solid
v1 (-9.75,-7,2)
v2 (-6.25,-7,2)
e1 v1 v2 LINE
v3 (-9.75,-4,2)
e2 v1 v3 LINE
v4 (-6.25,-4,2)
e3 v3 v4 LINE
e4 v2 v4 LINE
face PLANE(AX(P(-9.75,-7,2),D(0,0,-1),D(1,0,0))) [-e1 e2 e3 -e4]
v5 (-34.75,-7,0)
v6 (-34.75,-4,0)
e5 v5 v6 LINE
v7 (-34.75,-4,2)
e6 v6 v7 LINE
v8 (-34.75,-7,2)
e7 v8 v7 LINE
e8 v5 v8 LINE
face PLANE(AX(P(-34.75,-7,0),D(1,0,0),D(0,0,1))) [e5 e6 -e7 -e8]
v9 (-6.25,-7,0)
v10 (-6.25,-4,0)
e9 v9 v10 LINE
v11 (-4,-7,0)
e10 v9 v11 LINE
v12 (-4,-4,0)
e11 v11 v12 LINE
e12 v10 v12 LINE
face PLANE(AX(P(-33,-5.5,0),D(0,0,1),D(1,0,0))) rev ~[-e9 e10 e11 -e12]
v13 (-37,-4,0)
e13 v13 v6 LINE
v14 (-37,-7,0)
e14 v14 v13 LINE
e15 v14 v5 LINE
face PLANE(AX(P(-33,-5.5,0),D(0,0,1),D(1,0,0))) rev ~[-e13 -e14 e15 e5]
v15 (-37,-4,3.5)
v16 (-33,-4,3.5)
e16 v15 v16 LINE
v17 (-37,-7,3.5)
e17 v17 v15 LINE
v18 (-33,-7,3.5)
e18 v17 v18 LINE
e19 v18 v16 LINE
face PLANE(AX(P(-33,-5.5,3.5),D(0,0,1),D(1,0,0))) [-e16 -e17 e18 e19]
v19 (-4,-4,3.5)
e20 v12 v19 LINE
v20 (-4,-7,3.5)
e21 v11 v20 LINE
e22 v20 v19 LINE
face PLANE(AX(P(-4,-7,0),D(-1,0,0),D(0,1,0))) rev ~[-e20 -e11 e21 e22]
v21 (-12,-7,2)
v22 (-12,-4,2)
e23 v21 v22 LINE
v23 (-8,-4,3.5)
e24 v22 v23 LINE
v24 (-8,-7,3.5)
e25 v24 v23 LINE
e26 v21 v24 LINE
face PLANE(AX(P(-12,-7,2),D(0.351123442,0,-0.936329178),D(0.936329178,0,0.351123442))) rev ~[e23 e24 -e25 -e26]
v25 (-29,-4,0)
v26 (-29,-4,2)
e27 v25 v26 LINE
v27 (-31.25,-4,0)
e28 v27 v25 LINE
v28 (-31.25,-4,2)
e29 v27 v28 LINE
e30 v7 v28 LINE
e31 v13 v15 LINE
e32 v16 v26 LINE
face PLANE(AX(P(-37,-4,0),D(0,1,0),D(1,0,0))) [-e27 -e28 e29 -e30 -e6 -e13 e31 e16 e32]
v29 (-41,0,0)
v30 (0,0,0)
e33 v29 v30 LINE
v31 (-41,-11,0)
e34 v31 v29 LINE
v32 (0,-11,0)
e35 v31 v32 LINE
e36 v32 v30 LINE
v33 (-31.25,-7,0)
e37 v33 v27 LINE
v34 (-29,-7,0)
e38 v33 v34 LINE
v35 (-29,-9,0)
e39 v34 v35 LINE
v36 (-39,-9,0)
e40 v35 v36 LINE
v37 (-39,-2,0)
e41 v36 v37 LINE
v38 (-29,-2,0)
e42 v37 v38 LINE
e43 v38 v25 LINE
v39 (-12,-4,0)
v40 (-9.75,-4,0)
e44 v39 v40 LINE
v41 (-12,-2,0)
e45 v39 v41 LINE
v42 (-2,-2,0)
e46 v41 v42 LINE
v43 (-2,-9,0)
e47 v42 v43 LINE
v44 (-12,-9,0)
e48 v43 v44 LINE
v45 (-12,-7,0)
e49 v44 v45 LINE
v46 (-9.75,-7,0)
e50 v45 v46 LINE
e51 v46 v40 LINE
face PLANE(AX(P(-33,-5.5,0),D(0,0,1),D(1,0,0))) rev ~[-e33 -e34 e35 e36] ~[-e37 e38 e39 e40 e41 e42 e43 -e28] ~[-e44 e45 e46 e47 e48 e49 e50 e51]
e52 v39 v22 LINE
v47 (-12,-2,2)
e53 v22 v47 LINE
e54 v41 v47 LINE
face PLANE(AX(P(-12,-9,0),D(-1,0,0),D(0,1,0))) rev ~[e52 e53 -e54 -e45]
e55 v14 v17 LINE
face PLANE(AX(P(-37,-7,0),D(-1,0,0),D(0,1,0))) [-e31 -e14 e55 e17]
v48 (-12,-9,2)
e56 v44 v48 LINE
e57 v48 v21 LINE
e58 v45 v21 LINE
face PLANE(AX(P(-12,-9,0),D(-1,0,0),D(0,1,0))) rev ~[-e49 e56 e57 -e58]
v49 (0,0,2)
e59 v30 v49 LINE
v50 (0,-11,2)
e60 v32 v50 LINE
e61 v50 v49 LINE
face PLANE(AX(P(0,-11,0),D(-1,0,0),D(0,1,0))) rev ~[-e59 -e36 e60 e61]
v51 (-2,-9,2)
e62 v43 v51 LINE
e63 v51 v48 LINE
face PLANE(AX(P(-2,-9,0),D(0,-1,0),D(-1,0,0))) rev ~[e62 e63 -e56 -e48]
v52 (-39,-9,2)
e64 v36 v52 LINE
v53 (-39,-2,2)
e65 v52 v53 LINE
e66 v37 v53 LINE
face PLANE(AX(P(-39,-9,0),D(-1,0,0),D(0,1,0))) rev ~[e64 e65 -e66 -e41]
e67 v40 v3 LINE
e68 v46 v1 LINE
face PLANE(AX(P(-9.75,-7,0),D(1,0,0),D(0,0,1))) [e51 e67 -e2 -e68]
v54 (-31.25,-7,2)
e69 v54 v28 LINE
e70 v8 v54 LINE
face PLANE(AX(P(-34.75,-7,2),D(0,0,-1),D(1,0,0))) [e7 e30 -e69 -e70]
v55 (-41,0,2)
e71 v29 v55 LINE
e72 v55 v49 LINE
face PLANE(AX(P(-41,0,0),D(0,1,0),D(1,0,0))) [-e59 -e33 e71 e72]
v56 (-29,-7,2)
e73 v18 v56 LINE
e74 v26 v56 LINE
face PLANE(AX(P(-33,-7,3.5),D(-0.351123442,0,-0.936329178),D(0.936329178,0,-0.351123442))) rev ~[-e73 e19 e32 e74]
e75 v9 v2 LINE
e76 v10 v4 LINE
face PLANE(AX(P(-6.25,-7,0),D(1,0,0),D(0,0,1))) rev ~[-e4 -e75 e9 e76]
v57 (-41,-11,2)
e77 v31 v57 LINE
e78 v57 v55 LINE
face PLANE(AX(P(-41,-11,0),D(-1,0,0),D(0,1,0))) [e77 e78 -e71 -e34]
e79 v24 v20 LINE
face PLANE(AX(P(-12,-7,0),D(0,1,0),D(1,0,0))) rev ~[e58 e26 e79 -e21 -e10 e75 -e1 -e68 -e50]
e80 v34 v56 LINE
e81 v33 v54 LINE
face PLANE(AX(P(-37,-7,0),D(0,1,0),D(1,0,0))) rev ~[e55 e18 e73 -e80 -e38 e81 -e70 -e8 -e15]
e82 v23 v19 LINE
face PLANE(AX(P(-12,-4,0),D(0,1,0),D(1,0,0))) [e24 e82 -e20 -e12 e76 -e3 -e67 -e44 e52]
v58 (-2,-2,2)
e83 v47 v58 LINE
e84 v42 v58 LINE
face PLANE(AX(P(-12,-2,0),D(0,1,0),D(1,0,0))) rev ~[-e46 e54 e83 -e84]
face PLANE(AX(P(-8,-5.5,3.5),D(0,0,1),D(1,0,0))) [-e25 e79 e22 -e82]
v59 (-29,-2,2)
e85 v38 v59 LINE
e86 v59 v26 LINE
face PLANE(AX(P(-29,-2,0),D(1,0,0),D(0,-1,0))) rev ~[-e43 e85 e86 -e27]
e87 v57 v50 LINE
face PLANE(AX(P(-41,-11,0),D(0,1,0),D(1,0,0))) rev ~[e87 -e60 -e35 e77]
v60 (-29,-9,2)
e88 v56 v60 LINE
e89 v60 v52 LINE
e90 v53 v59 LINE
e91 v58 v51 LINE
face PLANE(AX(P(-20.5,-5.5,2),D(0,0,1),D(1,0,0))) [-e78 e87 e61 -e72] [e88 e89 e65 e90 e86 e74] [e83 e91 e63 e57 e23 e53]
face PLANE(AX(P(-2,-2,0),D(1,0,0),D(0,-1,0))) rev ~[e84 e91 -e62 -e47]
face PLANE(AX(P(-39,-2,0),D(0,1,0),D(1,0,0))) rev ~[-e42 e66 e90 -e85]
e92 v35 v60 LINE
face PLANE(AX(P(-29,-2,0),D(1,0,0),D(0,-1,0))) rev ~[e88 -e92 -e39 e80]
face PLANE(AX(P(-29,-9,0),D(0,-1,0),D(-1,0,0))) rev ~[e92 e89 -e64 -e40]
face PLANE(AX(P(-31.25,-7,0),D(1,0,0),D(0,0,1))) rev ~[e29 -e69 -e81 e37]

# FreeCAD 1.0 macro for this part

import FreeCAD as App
import Part
import Sketcher
Q = App.Units.Quantity

doc = App.newDocument("Part")
params = doc.addObject("Spreadsheet::Sheet", "Params")
for row, (alias, value) in enumerate([
    ("sketch1_width", "41 mm"),
    ("sketch1_width2", "10 mm"),
    ("sketch1_height", "11 mm"),
    ("sketch1_height2", "7 mm"),
    ("pad1_length", "2 mm"),
    ("sketch2_width", "8 mm"),
    ("sketch2_height", "3 mm"),
    ("pad2_length", "3.5 mm"),
    ("sketch3_width", "4 mm"),
    ("sketch3_height", "2 mm"),
    ("sketch3_width2", "3.5 mm"),
    ("sketch3_height2", "1.5 mm"),
    ("pocket1_length", "3 mm"),
    ("sketch4_width", "4 mm"),
    ("sketch4_height", "2 mm"),
    ("sketch4_width2", "3.5 mm"),
    ("sketch4_height2", "1.5 mm"),
    ("pocket2_length", "3 mm"),
], start=1):
    params.set(f"A{row}", alias)
    params.set(f"B{row}", "=" + value)
    params.setAlias(f"B{row}", alias)

body = doc.addObject("PartDesign::Body", "Body")

# Sketch on XY plane
sketch1 = body.newObject("Sketcher::SketchObject", "Sketch")
sketch1.AttachmentSupport = (doc.getObject("XY_Plane"), [""])
sketch1.MapMode = "FlatFace"
sketch1.addGeometry([
    Part.LineSegment(App.Vector(-41, 0, 0), App.Vector(-41, -11, 0)),  # 0
    Part.LineSegment(App.Vector(-41, -11, 0), App.Vector(0, -11, 0)),  # 1
    Part.LineSegment(App.Vector(0, -11, 0), App.Vector(0, 0, 0)),  # 2
    Part.LineSegment(App.Vector(0, 0, 0), App.Vector(-41, 0, 0)),  # 3
    Part.LineSegment(App.Vector(-29, -9, 0), App.Vector(-39, -9, 0)),  # 4
    Part.LineSegment(App.Vector(-39, -9, 0), App.Vector(-39, -2, 0)),  # 5
    Part.LineSegment(App.Vector(-39, -2, 0), App.Vector(-29, -2, 0)),  # 6
    Part.LineSegment(App.Vector(-29, -2, 0), App.Vector(-29, -9, 0)),  # 7
    Part.LineSegment(App.Vector(-2, -2, 0), App.Vector(-2, -9, 0)),  # 8
    Part.LineSegment(App.Vector(-2, -9, 0), App.Vector(-12, -9, 0)),  # 9
    Part.LineSegment(App.Vector(-12, -9, 0), App.Vector(-12, -2, 0)),  # 10
    Part.LineSegment(App.Vector(-12, -2, 0), App.Vector(-2, -2, 0)),  # 11
], False)
sketch1.addConstraint([
    Sketcher.Constraint("Coincident", 0, 2, 1, 1),
    Sketcher.Constraint("Coincident", 1, 2, 2, 1),
    Sketcher.Constraint("Coincident", 2, 2, 3, 1),
    Sketcher.Constraint("Coincident", 3, 2, 0, 1),
    Sketcher.Constraint("Coincident", 4, 2, 5, 1),
    Sketcher.Constraint("Coincident", 5, 2, 6, 1),
    Sketcher.Constraint("Coincident", 6, 2, 7, 1),
    Sketcher.Constraint("Coincident", 7, 2, 4, 1),
    Sketcher.Constraint("Coincident", 8, 2, 9, 1),
    Sketcher.Constraint("Coincident", 9, 2, 10, 1),
    Sketcher.Constraint("Coincident", 10, 2, 11, 1),
    Sketcher.Constraint("Coincident", 11, 2, 8, 1),
    Sketcher.Constraint("Vertical", 0),
    Sketcher.Constraint("Horizontal", 1),
    Sketcher.Constraint("Vertical", 2),
    Sketcher.Constraint("Horizontal", 3),
    Sketcher.Constraint("Horizontal", 4),
    Sketcher.Constraint("Vertical", 5),
    Sketcher.Constraint("Horizontal", 6),
    Sketcher.Constraint("Vertical", 7),
    Sketcher.Constraint("Vertical", 8),
    Sketcher.Constraint("Horizontal", 9),
    Sketcher.Constraint("Vertical", 10),
    Sketcher.Constraint("Horizontal", 11),
    Sketcher.Constraint("Coincident", 2, 2, -1, 1),
    Sketcher.Constraint("Horizontal", 7, 2, 8, 2),
    Sketcher.Constraint("Horizontal", 6, 2, 10, 2),
    Sketcher.Constraint("Equal", 6, 9),
    Sketcher.Constraint("DistanceX", 1, 1, 1, 2, Q("41 mm")),
    Sketcher.Constraint("DistanceX", 4, 2, 4, 1, Q("10 mm")),
    Sketcher.Constraint("DistanceY", 0, 2, 0, 1, Q("11 mm")),
    Sketcher.Constraint("DistanceY", 5, 1, 5, 2, Q("7 mm")),
    Sketcher.Constraint("DistanceX", 4, 2, -1, 1, Q("39 mm")),
    Sketcher.Constraint("DistanceY", 4, 2, -1, 1, Q("9 mm")),
    Sketcher.Constraint("DistanceX", 8, 2, -1, 1, Q("2 mm")),
])
sketch1.setExpression("Constraints[28]", "Params.sketch1_width")
sketch1.setExpression("Constraints[29]", "Params.sketch1_width2")
sketch1.setExpression("Constraints[30]", "Params.sketch1_height")
sketch1.setExpression("Constraints[31]", "Params.sketch1_height2")
pad1 = body.newObject("PartDesign::Pad", "Pad")
pad1.Profile = sketch1
pad1.setExpression("Length", "Params.pad1_length")

# Sketch on XY plane
sketch2 = body.newObject("Sketcher::SketchObject", "Sketch001")
sketch2.AttachmentSupport = (doc.getObject("XY_Plane"), [""])
sketch2.MapMode = "FlatFace"
sketch2.addGeometry([
    Part.LineSegment(App.Vector(-37, -4, 0), App.Vector(-37, -7, 0)),  # 0
    Part.LineSegment(App.Vector(-37, -7, 0), App.Vector(-29, -7, 0)),  # 1
    Part.LineSegment(App.Vector(-29, -7, 0), App.Vector(-29, -4, 0)),  # 2
    Part.LineSegment(App.Vector(-29, -4, 0), App.Vector(-37, -4, 0)),  # 3
    Part.LineSegment(App.Vector(-12, -4, 0), App.Vector(-12, -7, 0)),  # 4
    Part.LineSegment(App.Vector(-12, -7, 0), App.Vector(-4, -7, 0)),  # 5
    Part.LineSegment(App.Vector(-4, -7, 0), App.Vector(-4, -4, 0)),  # 6
    Part.LineSegment(App.Vector(-4, -4, 0), App.Vector(-12, -4, 0)),  # 7
], False)
sketch2.addConstraint([
    Sketcher.Constraint("Coincident", 0, 2, 1, 1),
    Sketcher.Constraint("Coincident", 1, 2, 2, 1),
    Sketcher.Constraint("Coincident", 2, 2, 3, 1),
    Sketcher.Constraint("Coincident", 3, 2, 0, 1),
    Sketcher.Constraint("Coincident", 4, 2, 5, 1),
    Sketcher.Constraint("Coincident", 5, 2, 6, 1),
    Sketcher.Constraint("Coincident", 6, 2, 7, 1),
    Sketcher.Constraint("Coincident", 7, 2, 4, 1),
    Sketcher.Constraint("Vertical", 0),
    Sketcher.Constraint("Horizontal", 1),
    Sketcher.Constraint("Vertical", 2),
    Sketcher.Constraint("Horizontal", 3),
    Sketcher.Constraint("Vertical", 4),
    Sketcher.Constraint("Horizontal", 5),
    Sketcher.Constraint("Vertical", 6),
    Sketcher.Constraint("Horizontal", 7),
    Sketcher.Constraint("Horizontal", 1, 2, 4, 2),
    Sketcher.Constraint("Horizontal", 3, 2, 6, 2),
    Sketcher.Constraint("Equal", 3, 5),
    Sketcher.Constraint("DistanceX", 1, 1, 1, 2, Q("8 mm")),
    Sketcher.Constraint("DistanceY", 0, 2, 0, 1, Q("3 mm")),
    Sketcher.Constraint("DistanceX", 0, 2, -1, 1, Q("37 mm")),
    Sketcher.Constraint("DistanceY", 0, 2, -1, 1, Q("7 mm")),
    Sketcher.Constraint("DistanceX", 4, 2, -1, 1, Q("12 mm")),
])
sketch2.setExpression("Constraints[19]", "Params.sketch2_width")
sketch2.setExpression("Constraints[20]", "Params.sketch2_height")
pad2 = body.newObject("PartDesign::Pad", "Pad001")
pad2.Profile = sketch2
pad2.setExpression("Length", "Params.pad2_length")

# Sketch on XZ plane
sketch3 = body.newObject("Sketcher::SketchObject", "Sketch002")
sketch3.AttachmentSupport = (doc.getObject("XZ_Plane"), [""])
sketch3.MapMode = "FlatFace"
sketch3.AttachmentOffset = App.Placement(App.Vector(0, 0, 7), App.Rotation())
sketch3.addGeometry([
    Part.LineSegment(App.Vector(-33, 3.5, 0), App.Vector(-29, 2, 0)),  # 0
    Part.LineSegment(App.Vector(-29, 2, 0), App.Vector(-29, 3.5, 0)),  # 1
    Part.LineSegment(App.Vector(-29, 3.5, 0), App.Vector(-33, 3.5, 0)),  # 2
    Part.LineSegment(App.Vector(-34.75, 2, 0), App.Vector(-34.75, 0, 0)),  # 3
    Part.LineSegment(App.Vector(-34.75, 0, 0), App.Vector(-31.25, 0, 0)),  # 4
    Part.LineSegment(App.Vector(-31.25, 0, 0), App.Vector(-31.25, 2, 0)),  # 5
    Part.LineSegment(App.Vector(-31.25, 2, 0), App.Vector(-34.75, 2, 0)),  # 6
], False)
sketch3.addConstraint([
    Sketcher.Constraint("Coincident", 0, 2, 1, 1),
    Sketcher.Constraint("Coincident", 1, 2, 2, 1),
    Sketcher.Constraint("Coincident", 2, 2, 0, 1),
    Sketcher.Constraint("Coincident", 3, 2, 4, 1),
    Sketcher.Constraint("Coincident", 4, 2, 5, 1),
    Sketcher.Constraint("Coincident", 5, 2, 6, 1),
    Sketcher.Constraint("Coincident", 6, 2, 3, 1),
    Sketcher.Constraint("Vertical", 1),
    Sketcher.Constraint("Horizontal", 2),
    Sketcher.Constraint("Vertical", 3),
    Sketcher.Constraint("Horizontal", 4),
    Sketcher.Constraint("Vertical", 5),
    Sketcher.Constraint("Horizontal", 6),
    Sketcher.Constraint("PointOnObject", 3, 2, -1),
    Sketcher.Constraint("Horizontal", 0, 2, 5, 2),
    Sketcher.Constraint("DistanceX", 2, 2, 2, 1, Q("4 mm")),
    Sketcher.Constraint("DistanceY", 3, 2, 3, 1, Q("2 mm")),
    Sketcher.Constraint("DistanceX", 4, 1, 4, 2, Q("3.5 mm")),
    Sketcher.Constraint("DistanceY", 1, 1, 1, 2, Q("1.5 mm")),
    Sketcher.Constraint("DistanceX", 0, 2, -1, 1, Q("29 mm")),
    Sketcher.Constraint("DistanceX", 3, 2, -1, 1, Q("34.75 mm")),
])
sketch3.setExpression("Constraints[15]", "Params.sketch3_width")
sketch3.setExpression("Constraints[16]", "Params.sketch3_height")
sketch3.setExpression("Constraints[17]", "Params.sketch3_width2")
sketch3.setExpression("Constraints[18]", "Params.sketch3_height2")
pocket1 = body.newObject("PartDesign::Pocket", "Pocket")
pocket1.Profile = sketch3
pocket1.setExpression("Length", "Params.pocket1_length")

# Sketch on XZ plane
sketch4 = body.newObject("Sketcher::SketchObject", "Sketch003")
sketch4.AttachmentSupport = (doc.getObject("XZ_Plane"), [""])
sketch4.MapMode = "FlatFace"
sketch4.AttachmentOffset = App.Placement(App.Vector(0, 0, 7), App.Rotation())
sketch4.addGeometry([
    Part.LineSegment(App.Vector(-8, 3.5, 0), App.Vector(-12, 3.5, 0)),  # 0
    Part.LineSegment(App.Vector(-12, 3.5, 0), App.Vector(-12, 2, 0)),  # 1
    Part.LineSegment(App.Vector(-12, 2, 0), App.Vector(-8, 3.5, 0)),  # 2
    Part.LineSegment(App.Vector(-9.75, 2, 0), App.Vector(-9.75, 0, 0)),  # 3
    Part.LineSegment(App.Vector(-9.75, 0, 0), App.Vector(-6.25, 0, 0)),  # 4
    Part.LineSegment(App.Vector(-6.25, 0, 0), App.Vector(-6.25, 2, 0)),  # 5
    Part.LineSegment(App.Vector(-6.25, 2, 0), App.Vector(-9.75, 2, 0)),  # 6
], False)
sketch4.addConstraint([
    Sketcher.Constraint("Coincident", 0, 2, 1, 1),
    Sketcher.Constraint("Coincident", 1, 2, 2, 1),
    Sketcher.Constraint("Coincident", 2, 2, 0, 1),
    Sketcher.Constraint("Coincident", 3, 2, 4, 1),
    Sketcher.Constraint("Coincident", 4, 2, 5, 1),
    Sketcher.Constraint("Coincident", 5, 2, 6, 1),
    Sketcher.Constraint("Coincident", 6, 2, 3, 1),
    Sketcher.Constraint("Horizontal", 0),
    Sketcher.Constraint("Vertical", 1),
    Sketcher.Constraint("Vertical", 3),
    Sketcher.Constraint("Horizontal", 4),
    Sketcher.Constraint("Vertical", 5),
    Sketcher.Constraint("Horizontal", 6),
    Sketcher.Constraint("PointOnObject", 3, 2, -1),
    Sketcher.Constraint("Horizontal", 1, 2, 5, 2),
    Sketcher.Constraint("DistanceX", 0, 2, 0, 1, Q("4 mm")),
    Sketcher.Constraint("DistanceY", 3, 2, 3, 1, Q("2 mm")),
    Sketcher.Constraint("DistanceX", 4, 1, 4, 2, Q("3.5 mm")),
    Sketcher.Constraint("DistanceY", 1, 2, 1, 1, Q("1.5 mm")),
    Sketcher.Constraint("DistanceX", 0, 2, -1, 1, Q("12 mm")),
    Sketcher.Constraint("DistanceX", 3, 2, -1, 1, Q("9.75 mm")),
])
sketch4.setExpression("Constraints[15]", "Params.sketch4_width")
sketch4.setExpression("Constraints[16]", "Params.sketch4_height")
sketch4.setExpression("Constraints[17]", "Params.sketch4_width2")
sketch4.setExpression("Constraints[18]", "Params.sketch4_height2")
pocket2 = body.newObject("PartDesign::Pocket", "Pocket001")
pocket2.Profile = sketch4
pocket2.setExpression("Length", "Params.pocket2_length")

doc.recompute()
